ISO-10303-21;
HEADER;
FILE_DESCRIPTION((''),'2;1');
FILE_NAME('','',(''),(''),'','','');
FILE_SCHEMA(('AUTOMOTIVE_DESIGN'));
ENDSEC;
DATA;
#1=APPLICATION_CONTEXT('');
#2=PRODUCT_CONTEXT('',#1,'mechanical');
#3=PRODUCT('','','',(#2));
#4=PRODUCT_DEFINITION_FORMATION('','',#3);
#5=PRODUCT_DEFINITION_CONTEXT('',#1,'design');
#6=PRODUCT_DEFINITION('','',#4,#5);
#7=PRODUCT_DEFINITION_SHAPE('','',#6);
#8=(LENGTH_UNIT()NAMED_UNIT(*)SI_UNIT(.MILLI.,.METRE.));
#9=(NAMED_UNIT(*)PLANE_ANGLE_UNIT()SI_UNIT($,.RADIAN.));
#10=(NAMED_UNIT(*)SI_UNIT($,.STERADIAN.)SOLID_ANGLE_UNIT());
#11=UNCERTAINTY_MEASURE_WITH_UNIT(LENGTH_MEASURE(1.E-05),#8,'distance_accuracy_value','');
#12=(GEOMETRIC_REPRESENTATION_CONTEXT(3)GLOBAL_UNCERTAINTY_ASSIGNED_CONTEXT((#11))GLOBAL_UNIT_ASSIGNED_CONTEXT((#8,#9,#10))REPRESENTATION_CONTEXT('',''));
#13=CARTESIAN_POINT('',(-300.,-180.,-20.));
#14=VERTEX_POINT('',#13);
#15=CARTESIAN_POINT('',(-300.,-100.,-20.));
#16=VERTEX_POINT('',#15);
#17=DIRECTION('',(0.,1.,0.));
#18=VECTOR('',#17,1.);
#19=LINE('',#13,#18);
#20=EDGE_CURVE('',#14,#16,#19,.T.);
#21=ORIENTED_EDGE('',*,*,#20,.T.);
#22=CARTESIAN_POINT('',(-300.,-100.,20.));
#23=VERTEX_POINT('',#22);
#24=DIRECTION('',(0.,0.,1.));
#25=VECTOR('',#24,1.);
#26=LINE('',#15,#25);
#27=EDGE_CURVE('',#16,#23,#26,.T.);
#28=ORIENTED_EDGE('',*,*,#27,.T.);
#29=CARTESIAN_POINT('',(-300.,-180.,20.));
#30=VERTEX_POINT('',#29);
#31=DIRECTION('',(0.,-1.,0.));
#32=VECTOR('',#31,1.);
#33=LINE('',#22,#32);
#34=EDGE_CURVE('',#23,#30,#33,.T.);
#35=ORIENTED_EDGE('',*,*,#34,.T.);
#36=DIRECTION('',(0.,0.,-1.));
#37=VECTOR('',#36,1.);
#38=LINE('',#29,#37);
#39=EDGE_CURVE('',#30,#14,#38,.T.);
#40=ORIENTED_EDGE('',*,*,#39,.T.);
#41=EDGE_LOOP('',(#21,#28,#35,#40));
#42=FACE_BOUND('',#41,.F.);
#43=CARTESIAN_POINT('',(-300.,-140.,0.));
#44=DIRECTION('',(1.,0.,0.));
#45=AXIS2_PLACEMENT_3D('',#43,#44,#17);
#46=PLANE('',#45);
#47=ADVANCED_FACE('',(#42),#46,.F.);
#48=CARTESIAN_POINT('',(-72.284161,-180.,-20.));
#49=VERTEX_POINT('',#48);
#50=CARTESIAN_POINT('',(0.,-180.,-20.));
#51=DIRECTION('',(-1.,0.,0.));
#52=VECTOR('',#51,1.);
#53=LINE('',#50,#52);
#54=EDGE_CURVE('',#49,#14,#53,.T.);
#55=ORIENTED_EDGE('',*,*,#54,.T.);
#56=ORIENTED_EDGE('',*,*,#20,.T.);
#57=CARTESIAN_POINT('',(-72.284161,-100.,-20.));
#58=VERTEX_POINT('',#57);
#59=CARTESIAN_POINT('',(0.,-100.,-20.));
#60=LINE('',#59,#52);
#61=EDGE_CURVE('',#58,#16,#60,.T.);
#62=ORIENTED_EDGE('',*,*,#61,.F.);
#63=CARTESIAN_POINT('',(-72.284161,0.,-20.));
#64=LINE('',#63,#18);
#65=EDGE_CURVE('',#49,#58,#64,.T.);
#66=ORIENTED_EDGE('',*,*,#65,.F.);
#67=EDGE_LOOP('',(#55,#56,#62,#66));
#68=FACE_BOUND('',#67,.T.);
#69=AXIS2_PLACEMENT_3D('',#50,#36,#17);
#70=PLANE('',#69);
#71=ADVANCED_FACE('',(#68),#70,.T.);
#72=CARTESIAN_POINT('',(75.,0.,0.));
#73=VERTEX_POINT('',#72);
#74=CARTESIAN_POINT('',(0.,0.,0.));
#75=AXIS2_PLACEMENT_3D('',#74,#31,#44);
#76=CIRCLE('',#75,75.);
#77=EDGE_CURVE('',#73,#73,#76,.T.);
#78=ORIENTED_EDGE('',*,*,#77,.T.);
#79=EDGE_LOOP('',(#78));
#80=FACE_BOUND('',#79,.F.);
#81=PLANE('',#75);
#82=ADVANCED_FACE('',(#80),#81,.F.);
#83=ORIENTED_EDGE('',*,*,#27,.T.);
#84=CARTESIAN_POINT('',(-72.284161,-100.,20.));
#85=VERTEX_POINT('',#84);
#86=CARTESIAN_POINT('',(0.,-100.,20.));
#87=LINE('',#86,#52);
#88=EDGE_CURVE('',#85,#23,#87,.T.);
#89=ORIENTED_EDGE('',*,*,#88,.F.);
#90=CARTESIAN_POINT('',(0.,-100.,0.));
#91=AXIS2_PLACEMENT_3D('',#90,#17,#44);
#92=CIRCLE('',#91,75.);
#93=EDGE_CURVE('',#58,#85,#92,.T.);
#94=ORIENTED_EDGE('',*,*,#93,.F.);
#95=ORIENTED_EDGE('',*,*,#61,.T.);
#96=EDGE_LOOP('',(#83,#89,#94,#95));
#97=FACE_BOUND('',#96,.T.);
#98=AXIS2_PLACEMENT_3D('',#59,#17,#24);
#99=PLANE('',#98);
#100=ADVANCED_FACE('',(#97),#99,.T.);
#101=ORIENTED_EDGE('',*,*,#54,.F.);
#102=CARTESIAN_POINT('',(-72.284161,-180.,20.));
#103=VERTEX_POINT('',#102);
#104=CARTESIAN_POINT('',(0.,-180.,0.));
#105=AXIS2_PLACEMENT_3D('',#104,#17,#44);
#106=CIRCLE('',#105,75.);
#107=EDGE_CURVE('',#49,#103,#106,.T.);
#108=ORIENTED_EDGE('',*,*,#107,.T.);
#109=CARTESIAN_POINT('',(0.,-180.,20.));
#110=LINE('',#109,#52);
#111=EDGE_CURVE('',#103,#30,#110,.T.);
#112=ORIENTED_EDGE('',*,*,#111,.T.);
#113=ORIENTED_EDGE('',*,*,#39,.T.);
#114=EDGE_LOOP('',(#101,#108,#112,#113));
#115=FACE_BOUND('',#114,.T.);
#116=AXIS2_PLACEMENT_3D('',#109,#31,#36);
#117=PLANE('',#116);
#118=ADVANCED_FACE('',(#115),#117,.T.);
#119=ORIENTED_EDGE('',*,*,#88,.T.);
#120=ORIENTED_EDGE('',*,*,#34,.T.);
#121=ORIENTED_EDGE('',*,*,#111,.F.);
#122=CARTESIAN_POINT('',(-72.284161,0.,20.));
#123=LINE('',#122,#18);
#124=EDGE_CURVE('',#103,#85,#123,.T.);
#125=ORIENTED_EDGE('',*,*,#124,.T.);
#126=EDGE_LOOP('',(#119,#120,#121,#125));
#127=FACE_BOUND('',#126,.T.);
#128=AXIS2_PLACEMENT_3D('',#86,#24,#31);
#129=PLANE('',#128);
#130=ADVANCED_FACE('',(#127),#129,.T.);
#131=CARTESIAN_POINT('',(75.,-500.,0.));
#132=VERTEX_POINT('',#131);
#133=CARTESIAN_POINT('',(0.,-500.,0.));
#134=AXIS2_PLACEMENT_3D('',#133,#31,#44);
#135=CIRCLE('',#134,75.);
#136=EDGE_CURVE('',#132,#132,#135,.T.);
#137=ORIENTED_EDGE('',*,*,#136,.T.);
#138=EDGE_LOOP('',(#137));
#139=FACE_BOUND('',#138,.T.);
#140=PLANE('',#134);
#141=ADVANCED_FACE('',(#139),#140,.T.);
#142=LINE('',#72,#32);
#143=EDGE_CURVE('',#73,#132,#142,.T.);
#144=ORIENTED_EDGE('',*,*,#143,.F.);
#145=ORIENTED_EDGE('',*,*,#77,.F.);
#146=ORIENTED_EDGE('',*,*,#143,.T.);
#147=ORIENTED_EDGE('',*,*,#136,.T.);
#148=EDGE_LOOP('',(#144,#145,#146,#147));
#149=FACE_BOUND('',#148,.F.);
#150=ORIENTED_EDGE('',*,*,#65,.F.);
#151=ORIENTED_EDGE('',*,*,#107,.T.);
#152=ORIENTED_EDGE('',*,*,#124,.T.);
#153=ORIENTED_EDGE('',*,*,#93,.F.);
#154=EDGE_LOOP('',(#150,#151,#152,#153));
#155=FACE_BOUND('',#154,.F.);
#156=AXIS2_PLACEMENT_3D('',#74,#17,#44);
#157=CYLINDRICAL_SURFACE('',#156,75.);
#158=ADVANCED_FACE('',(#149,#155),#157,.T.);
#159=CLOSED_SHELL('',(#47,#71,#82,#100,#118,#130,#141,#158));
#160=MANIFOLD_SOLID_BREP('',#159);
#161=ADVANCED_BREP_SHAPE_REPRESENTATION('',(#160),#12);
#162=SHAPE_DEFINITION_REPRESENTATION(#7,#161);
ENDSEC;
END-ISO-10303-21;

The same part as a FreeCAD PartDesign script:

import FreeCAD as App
import Part
import Sketcher
from FreeCAD import Vector
Q = App.Units.Quantity


def add_polygon(sketch, points):
    """Adds a closed chain of lines whose ends are joined by coincident constraints."""
    first, n = sketch.GeometryCount, len(points)
    for a, b in zip(points, points[1:] + points[:1]):
        sketch.addGeometry(Part.LineSegment(App.Vector(*a, 0), App.Vector(*b, 0)), False)
    for i in range(n):
        sketch.addConstraint(Sketcher.Constraint("Coincident", first + i, 2, first + (i + 1) % n, 1))

doc = App.newDocument("Part")
body = doc.addObject("PartDesign::Body", "Body")

sketch1 = doc.addObject("Sketcher::SketchObject", "Sketch")
body.addObject(sketch1)
sketch1.AttachmentSupport = (doc.XZ_Plane, [""])
sketch1.MapMode = "FlatFace"
sketch1.addGeometry(Part.Circle(Vector(0, 0, 0), Vector(0, 0, 1), 75), False)
sketch1.addConstraint([
    Sketcher.Constraint("Coincident", 0, 3, -1, 1),
    Sketcher.Constraint("Diameter", 0, Q("150 mm")),
])
pad1 = doc.addObject("PartDesign::Pad", "Pad")
body.addObject(pad1)
pad1.Profile = sketch1
pad1.Length = 500

sketch2 = doc.addObject("Sketcher::SketchObject", "Sketch001")
body.addObject(sketch2)
sketch2.AttachmentSupport = (doc.YZ_Plane, [""])
sketch2.MapMode = "FlatFace"
add_polygon(sketch2, [(-100, 20), (-180, 20), (-180, -20), (-100, -20)])
sketch2.addConstraint([
    Sketcher.Constraint("Horizontal", 0),
    Sketcher.Constraint("Vertical", 1),
    Sketcher.Constraint("Horizontal", 2),
    Sketcher.Constraint("Vertical", 3),
    Sketcher.Constraint("DistanceX", 0, 2, 0, 1, Q("80 mm")),
    Sketcher.Constraint("DistanceY", 1, 2, 1, 1, Q("40 mm")),
    Sketcher.Constraint("DistanceX", 0, 2, -1, 1, Q("180 mm")),
    Sketcher.Constraint("DistanceY", -1, 1, 0, 2, Q("20 mm")),
])
pad2 = doc.addObject("PartDesign::Pad", "Pad001")
body.addObject(pad2)
pad2.Profile = sketch2
pad2.Length = 300
pad2.Reversed = True

doc.recompute()
